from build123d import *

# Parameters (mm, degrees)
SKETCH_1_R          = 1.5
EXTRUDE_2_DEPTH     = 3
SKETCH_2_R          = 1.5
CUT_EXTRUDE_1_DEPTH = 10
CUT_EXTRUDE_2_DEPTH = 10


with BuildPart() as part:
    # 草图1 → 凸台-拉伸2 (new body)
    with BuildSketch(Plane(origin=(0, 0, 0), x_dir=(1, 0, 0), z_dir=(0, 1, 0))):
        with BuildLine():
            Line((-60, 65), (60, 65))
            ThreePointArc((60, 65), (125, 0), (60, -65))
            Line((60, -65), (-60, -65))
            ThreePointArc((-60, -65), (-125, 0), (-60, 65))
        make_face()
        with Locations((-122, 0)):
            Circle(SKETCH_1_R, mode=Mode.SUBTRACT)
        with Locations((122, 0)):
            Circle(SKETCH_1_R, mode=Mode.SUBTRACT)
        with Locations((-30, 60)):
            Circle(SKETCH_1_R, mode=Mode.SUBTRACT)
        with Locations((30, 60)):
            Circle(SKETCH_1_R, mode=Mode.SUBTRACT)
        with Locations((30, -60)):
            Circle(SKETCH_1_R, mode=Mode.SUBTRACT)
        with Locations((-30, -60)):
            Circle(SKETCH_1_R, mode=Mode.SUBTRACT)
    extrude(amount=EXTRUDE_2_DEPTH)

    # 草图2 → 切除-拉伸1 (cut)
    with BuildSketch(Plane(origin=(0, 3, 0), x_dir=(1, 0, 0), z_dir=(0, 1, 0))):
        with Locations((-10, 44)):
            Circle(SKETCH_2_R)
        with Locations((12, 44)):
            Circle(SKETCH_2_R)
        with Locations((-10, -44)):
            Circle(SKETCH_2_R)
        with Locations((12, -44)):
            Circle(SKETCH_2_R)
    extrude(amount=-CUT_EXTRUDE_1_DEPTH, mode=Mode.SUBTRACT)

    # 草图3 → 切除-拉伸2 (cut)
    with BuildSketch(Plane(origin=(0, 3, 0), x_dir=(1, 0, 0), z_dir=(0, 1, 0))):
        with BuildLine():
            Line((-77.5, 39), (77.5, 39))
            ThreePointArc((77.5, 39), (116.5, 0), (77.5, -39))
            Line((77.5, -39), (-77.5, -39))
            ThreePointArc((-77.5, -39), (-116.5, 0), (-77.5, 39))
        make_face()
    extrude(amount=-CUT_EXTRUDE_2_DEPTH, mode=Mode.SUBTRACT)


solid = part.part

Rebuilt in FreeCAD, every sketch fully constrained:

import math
import FreeCAD as App
import Part
import Sketcher

V = App.Vector
Q = App.Units.Quantity

doc = App.newDocument("Part")
body = doc.addObject("PartDesign::Body", "Body")

# Sketch on XZ plane
sketch1 = body.newObject("Sketcher::SketchObject", "Sketch")
sketch1.AttachmentSupport = (doc.getObject("XZ_Plane"), [""])
sketch1.MapMode = "FlatFace"
sketch1.addGeometry([
    Part.LineSegment(V(60, -65, 0), V(-60, -65, 0)),  # 0
    Part.ArcOfCircle(Part.Circle(V(-60, 0, 0), V(0, 0, 1), 65), math.radians(90), math.radians(270)),  # 1
    Part.LineSegment(V(-60, 65, 0), V(60, 65, 0)),  # 2
    Part.ArcOfCircle(Part.Circle(V(60, 0, 0), V(0, 0, 1), 65), math.radians(-90), math.radians(90)),  # 3
    Part.Circle(V(30, 60, 0), V(0, 0, 1), 1.5),  # 4
    Part.Circle(V(-30, 60, 0), V(0, 0, 1), 1.5),  # 5
    Part.Circle(V(122, 0, 0), V(0, 0, 1), 1.5),  # 6
    Part.Circle(V(30, -60, 0), V(0, 0, 1), 1.5),  # 7
    Part.Circle(V(-122, 0, 0), V(0, 0, 1), 1.5),  # 8
    Part.Circle(V(-30, -60, 0), V(0, 0, 1), 1.5),  # 9
], False)
sketch1.addConstraint([
    Sketcher.Constraint("Tangent", 0, 2, 1, 2),
    Sketcher.Constraint("Tangent", 1, 1, 2, 1),
    Sketcher.Constraint("Tangent", 2, 2, 3, 2),
    Sketcher.Constraint("Tangent", 3, 1, 0, 1),
    Sketcher.Constraint("Horizontal", 0),
    Sketcher.Constraint("Horizontal", 2),
    Sketcher.Constraint("Equal", 4, 5),
    Sketcher.Constraint("Equal", 5, 6),
    Sketcher.Constraint("Equal", 6, 7),
    Sketcher.Constraint("Equal", 7, 8),
    Sketcher.Constraint("Equal", 8, 9),
    Sketcher.Constraint("Symmetric", 1, 3, 3, 3, -1, 1),
    Sketcher.Constraint("Symmetric", 5, 3, 7, 3, -1, 1),
    Sketcher.Constraint("Symmetric", 6, 3, 8, 3, -1, 1),
    Sketcher.Constraint("Symmetric", 4, 3, 9, 3, -1, 1),
    Sketcher.Constraint("Symmetric", 4, 3, 5, 3, -2),
    Sketcher.Constraint("PointOnObject", 6, 3, -1),
    Sketcher.Constraint("Diameter", 4, Q("3 mm")),
    Sketcher.Constraint("Radius", 1, Q("65 mm")),
    Sketcher.Constraint("DistanceX", 0, 2, 0, 1, Q("120 mm")),
    Sketcher.Constraint("DistanceX", -1, 1, 4, 3, Q("30 mm")),
    Sketcher.Constraint("DistanceY", -1, 1, 4, 3, Q("60 mm")),
    Sketcher.Constraint("DistanceX", -1, 1, 6, 3, Q("122 mm")),
])
pad1 = body.newObject("PartDesign::Pad", "Pad")
pad1.Profile = sketch1
pad1.Length = 3
pad1.Reversed = True

# Sketch on XZ plane
sketch2 = body.newObject("Sketcher::SketchObject", "Sketch001")
sketch2.AttachmentSupport = (doc.getObject("XZ_Plane"), [""])
sketch2.MapMode = "FlatFace"
sketch2.AttachmentOffset = App.Placement(V(0, 0, -3), App.Rotation())
sketch2.addGeometry([
    Part.Circle(V(-10, -44, 0), V(0, 0, 1), 1.5),
    Part.Circle(V(12, -44, 0), V(0, 0, 1), 1.5),
    Part.Circle(V(-10, 44, 0), V(0, 0, 1), 1.5),
    Part.Circle(V(12, 44, 0), V(0, 0, 1), 1.5),
], False)
sketch2.addConstraint([
    Sketcher.Constraint("Equal", 0, 1),
    Sketcher.Constraint("Equal", 1, 2),
    Sketcher.Constraint("Equal", 2, 3),
    Sketcher.Constraint("Symmetric", 0, 3, 2, 3, -1),
    Sketcher.Constraint("Symmetric", 1, 3, 3, 3, -1),
    Sketcher.Constraint("Horizontal", 0, 3, 1, 3),
    Sketcher.Constraint("Diameter", 0, Q("3 mm")),
    Sketcher.Constraint("DistanceX", 0, 3, -1, 1, Q("10 mm")),
    Sketcher.Constraint("DistanceY", 0, 3, -1, 1, Q("44 mm")),
    Sketcher.Constraint("DistanceX", -1, 1, 1, 3, Q("12 mm")),
])
pocket1 = body.newObject("PartDesign::Pocket", "Pocket")
pocket1.Profile = sketch2
pocket1.Length = 10
pocket1.Reversed = True

# Sketch on XZ plane
sketch3 = body.newObject("Sketcher::SketchObject", "Sketch002")
sketch3.AttachmentSupport = (doc.getObject("XZ_Plane"), [""])
sketch3.MapMode = "FlatFace"
sketch3.AttachmentOffset = App.Placement(V(0, 0, -3), App.Rotation())
sketch3.addGeometry([
    Part.LineSegment(V(78, -39, 0), V(-78, -39, 0)),
    Part.ArcOfCircle(Part.Circle(V(-78, 0, 0), V(0, 0, 1), 39), math.radians(90), math.radians(270)),
    Part.LineSegment(V(-78, 39, 0), V(78, 39, 0)),
    Part.ArcOfCircle(Part.Circle(V(78, 0, 0), V(0, 0, 1), 39), math.radians(-90), math.radians(90)),
], False)
sketch3.addConstraint([
    Sketcher.Constraint("Tangent", 0, 2, 1, 2),
    Sketcher.Constraint("Tangent", 1, 1, 2, 1),
    Sketcher.Constraint("Tangent", 2, 2, 3, 2),
    Sketcher.Constraint("Tangent", 3, 1, 0, 1),
    Sketcher.Constraint("Horizontal", 0),
    Sketcher.Constraint("Horizontal", 2),
    Sketcher.Constraint("Symmetric", 1, 3, 3, 3, -1, 1),
    Sketcher.Constraint("Radius", 1, Q("39 mm")),
    Sketcher.Constraint("DistanceX", 0, 2, 0, 1, Q("155 mm")),
])
pocket2 = body.newObject("PartDesign::Pocket", "Pocket001")
pocket2.Profile = sketch3
pocket2.Length = 10
pocket2.Reversed = True

doc.recompute()
